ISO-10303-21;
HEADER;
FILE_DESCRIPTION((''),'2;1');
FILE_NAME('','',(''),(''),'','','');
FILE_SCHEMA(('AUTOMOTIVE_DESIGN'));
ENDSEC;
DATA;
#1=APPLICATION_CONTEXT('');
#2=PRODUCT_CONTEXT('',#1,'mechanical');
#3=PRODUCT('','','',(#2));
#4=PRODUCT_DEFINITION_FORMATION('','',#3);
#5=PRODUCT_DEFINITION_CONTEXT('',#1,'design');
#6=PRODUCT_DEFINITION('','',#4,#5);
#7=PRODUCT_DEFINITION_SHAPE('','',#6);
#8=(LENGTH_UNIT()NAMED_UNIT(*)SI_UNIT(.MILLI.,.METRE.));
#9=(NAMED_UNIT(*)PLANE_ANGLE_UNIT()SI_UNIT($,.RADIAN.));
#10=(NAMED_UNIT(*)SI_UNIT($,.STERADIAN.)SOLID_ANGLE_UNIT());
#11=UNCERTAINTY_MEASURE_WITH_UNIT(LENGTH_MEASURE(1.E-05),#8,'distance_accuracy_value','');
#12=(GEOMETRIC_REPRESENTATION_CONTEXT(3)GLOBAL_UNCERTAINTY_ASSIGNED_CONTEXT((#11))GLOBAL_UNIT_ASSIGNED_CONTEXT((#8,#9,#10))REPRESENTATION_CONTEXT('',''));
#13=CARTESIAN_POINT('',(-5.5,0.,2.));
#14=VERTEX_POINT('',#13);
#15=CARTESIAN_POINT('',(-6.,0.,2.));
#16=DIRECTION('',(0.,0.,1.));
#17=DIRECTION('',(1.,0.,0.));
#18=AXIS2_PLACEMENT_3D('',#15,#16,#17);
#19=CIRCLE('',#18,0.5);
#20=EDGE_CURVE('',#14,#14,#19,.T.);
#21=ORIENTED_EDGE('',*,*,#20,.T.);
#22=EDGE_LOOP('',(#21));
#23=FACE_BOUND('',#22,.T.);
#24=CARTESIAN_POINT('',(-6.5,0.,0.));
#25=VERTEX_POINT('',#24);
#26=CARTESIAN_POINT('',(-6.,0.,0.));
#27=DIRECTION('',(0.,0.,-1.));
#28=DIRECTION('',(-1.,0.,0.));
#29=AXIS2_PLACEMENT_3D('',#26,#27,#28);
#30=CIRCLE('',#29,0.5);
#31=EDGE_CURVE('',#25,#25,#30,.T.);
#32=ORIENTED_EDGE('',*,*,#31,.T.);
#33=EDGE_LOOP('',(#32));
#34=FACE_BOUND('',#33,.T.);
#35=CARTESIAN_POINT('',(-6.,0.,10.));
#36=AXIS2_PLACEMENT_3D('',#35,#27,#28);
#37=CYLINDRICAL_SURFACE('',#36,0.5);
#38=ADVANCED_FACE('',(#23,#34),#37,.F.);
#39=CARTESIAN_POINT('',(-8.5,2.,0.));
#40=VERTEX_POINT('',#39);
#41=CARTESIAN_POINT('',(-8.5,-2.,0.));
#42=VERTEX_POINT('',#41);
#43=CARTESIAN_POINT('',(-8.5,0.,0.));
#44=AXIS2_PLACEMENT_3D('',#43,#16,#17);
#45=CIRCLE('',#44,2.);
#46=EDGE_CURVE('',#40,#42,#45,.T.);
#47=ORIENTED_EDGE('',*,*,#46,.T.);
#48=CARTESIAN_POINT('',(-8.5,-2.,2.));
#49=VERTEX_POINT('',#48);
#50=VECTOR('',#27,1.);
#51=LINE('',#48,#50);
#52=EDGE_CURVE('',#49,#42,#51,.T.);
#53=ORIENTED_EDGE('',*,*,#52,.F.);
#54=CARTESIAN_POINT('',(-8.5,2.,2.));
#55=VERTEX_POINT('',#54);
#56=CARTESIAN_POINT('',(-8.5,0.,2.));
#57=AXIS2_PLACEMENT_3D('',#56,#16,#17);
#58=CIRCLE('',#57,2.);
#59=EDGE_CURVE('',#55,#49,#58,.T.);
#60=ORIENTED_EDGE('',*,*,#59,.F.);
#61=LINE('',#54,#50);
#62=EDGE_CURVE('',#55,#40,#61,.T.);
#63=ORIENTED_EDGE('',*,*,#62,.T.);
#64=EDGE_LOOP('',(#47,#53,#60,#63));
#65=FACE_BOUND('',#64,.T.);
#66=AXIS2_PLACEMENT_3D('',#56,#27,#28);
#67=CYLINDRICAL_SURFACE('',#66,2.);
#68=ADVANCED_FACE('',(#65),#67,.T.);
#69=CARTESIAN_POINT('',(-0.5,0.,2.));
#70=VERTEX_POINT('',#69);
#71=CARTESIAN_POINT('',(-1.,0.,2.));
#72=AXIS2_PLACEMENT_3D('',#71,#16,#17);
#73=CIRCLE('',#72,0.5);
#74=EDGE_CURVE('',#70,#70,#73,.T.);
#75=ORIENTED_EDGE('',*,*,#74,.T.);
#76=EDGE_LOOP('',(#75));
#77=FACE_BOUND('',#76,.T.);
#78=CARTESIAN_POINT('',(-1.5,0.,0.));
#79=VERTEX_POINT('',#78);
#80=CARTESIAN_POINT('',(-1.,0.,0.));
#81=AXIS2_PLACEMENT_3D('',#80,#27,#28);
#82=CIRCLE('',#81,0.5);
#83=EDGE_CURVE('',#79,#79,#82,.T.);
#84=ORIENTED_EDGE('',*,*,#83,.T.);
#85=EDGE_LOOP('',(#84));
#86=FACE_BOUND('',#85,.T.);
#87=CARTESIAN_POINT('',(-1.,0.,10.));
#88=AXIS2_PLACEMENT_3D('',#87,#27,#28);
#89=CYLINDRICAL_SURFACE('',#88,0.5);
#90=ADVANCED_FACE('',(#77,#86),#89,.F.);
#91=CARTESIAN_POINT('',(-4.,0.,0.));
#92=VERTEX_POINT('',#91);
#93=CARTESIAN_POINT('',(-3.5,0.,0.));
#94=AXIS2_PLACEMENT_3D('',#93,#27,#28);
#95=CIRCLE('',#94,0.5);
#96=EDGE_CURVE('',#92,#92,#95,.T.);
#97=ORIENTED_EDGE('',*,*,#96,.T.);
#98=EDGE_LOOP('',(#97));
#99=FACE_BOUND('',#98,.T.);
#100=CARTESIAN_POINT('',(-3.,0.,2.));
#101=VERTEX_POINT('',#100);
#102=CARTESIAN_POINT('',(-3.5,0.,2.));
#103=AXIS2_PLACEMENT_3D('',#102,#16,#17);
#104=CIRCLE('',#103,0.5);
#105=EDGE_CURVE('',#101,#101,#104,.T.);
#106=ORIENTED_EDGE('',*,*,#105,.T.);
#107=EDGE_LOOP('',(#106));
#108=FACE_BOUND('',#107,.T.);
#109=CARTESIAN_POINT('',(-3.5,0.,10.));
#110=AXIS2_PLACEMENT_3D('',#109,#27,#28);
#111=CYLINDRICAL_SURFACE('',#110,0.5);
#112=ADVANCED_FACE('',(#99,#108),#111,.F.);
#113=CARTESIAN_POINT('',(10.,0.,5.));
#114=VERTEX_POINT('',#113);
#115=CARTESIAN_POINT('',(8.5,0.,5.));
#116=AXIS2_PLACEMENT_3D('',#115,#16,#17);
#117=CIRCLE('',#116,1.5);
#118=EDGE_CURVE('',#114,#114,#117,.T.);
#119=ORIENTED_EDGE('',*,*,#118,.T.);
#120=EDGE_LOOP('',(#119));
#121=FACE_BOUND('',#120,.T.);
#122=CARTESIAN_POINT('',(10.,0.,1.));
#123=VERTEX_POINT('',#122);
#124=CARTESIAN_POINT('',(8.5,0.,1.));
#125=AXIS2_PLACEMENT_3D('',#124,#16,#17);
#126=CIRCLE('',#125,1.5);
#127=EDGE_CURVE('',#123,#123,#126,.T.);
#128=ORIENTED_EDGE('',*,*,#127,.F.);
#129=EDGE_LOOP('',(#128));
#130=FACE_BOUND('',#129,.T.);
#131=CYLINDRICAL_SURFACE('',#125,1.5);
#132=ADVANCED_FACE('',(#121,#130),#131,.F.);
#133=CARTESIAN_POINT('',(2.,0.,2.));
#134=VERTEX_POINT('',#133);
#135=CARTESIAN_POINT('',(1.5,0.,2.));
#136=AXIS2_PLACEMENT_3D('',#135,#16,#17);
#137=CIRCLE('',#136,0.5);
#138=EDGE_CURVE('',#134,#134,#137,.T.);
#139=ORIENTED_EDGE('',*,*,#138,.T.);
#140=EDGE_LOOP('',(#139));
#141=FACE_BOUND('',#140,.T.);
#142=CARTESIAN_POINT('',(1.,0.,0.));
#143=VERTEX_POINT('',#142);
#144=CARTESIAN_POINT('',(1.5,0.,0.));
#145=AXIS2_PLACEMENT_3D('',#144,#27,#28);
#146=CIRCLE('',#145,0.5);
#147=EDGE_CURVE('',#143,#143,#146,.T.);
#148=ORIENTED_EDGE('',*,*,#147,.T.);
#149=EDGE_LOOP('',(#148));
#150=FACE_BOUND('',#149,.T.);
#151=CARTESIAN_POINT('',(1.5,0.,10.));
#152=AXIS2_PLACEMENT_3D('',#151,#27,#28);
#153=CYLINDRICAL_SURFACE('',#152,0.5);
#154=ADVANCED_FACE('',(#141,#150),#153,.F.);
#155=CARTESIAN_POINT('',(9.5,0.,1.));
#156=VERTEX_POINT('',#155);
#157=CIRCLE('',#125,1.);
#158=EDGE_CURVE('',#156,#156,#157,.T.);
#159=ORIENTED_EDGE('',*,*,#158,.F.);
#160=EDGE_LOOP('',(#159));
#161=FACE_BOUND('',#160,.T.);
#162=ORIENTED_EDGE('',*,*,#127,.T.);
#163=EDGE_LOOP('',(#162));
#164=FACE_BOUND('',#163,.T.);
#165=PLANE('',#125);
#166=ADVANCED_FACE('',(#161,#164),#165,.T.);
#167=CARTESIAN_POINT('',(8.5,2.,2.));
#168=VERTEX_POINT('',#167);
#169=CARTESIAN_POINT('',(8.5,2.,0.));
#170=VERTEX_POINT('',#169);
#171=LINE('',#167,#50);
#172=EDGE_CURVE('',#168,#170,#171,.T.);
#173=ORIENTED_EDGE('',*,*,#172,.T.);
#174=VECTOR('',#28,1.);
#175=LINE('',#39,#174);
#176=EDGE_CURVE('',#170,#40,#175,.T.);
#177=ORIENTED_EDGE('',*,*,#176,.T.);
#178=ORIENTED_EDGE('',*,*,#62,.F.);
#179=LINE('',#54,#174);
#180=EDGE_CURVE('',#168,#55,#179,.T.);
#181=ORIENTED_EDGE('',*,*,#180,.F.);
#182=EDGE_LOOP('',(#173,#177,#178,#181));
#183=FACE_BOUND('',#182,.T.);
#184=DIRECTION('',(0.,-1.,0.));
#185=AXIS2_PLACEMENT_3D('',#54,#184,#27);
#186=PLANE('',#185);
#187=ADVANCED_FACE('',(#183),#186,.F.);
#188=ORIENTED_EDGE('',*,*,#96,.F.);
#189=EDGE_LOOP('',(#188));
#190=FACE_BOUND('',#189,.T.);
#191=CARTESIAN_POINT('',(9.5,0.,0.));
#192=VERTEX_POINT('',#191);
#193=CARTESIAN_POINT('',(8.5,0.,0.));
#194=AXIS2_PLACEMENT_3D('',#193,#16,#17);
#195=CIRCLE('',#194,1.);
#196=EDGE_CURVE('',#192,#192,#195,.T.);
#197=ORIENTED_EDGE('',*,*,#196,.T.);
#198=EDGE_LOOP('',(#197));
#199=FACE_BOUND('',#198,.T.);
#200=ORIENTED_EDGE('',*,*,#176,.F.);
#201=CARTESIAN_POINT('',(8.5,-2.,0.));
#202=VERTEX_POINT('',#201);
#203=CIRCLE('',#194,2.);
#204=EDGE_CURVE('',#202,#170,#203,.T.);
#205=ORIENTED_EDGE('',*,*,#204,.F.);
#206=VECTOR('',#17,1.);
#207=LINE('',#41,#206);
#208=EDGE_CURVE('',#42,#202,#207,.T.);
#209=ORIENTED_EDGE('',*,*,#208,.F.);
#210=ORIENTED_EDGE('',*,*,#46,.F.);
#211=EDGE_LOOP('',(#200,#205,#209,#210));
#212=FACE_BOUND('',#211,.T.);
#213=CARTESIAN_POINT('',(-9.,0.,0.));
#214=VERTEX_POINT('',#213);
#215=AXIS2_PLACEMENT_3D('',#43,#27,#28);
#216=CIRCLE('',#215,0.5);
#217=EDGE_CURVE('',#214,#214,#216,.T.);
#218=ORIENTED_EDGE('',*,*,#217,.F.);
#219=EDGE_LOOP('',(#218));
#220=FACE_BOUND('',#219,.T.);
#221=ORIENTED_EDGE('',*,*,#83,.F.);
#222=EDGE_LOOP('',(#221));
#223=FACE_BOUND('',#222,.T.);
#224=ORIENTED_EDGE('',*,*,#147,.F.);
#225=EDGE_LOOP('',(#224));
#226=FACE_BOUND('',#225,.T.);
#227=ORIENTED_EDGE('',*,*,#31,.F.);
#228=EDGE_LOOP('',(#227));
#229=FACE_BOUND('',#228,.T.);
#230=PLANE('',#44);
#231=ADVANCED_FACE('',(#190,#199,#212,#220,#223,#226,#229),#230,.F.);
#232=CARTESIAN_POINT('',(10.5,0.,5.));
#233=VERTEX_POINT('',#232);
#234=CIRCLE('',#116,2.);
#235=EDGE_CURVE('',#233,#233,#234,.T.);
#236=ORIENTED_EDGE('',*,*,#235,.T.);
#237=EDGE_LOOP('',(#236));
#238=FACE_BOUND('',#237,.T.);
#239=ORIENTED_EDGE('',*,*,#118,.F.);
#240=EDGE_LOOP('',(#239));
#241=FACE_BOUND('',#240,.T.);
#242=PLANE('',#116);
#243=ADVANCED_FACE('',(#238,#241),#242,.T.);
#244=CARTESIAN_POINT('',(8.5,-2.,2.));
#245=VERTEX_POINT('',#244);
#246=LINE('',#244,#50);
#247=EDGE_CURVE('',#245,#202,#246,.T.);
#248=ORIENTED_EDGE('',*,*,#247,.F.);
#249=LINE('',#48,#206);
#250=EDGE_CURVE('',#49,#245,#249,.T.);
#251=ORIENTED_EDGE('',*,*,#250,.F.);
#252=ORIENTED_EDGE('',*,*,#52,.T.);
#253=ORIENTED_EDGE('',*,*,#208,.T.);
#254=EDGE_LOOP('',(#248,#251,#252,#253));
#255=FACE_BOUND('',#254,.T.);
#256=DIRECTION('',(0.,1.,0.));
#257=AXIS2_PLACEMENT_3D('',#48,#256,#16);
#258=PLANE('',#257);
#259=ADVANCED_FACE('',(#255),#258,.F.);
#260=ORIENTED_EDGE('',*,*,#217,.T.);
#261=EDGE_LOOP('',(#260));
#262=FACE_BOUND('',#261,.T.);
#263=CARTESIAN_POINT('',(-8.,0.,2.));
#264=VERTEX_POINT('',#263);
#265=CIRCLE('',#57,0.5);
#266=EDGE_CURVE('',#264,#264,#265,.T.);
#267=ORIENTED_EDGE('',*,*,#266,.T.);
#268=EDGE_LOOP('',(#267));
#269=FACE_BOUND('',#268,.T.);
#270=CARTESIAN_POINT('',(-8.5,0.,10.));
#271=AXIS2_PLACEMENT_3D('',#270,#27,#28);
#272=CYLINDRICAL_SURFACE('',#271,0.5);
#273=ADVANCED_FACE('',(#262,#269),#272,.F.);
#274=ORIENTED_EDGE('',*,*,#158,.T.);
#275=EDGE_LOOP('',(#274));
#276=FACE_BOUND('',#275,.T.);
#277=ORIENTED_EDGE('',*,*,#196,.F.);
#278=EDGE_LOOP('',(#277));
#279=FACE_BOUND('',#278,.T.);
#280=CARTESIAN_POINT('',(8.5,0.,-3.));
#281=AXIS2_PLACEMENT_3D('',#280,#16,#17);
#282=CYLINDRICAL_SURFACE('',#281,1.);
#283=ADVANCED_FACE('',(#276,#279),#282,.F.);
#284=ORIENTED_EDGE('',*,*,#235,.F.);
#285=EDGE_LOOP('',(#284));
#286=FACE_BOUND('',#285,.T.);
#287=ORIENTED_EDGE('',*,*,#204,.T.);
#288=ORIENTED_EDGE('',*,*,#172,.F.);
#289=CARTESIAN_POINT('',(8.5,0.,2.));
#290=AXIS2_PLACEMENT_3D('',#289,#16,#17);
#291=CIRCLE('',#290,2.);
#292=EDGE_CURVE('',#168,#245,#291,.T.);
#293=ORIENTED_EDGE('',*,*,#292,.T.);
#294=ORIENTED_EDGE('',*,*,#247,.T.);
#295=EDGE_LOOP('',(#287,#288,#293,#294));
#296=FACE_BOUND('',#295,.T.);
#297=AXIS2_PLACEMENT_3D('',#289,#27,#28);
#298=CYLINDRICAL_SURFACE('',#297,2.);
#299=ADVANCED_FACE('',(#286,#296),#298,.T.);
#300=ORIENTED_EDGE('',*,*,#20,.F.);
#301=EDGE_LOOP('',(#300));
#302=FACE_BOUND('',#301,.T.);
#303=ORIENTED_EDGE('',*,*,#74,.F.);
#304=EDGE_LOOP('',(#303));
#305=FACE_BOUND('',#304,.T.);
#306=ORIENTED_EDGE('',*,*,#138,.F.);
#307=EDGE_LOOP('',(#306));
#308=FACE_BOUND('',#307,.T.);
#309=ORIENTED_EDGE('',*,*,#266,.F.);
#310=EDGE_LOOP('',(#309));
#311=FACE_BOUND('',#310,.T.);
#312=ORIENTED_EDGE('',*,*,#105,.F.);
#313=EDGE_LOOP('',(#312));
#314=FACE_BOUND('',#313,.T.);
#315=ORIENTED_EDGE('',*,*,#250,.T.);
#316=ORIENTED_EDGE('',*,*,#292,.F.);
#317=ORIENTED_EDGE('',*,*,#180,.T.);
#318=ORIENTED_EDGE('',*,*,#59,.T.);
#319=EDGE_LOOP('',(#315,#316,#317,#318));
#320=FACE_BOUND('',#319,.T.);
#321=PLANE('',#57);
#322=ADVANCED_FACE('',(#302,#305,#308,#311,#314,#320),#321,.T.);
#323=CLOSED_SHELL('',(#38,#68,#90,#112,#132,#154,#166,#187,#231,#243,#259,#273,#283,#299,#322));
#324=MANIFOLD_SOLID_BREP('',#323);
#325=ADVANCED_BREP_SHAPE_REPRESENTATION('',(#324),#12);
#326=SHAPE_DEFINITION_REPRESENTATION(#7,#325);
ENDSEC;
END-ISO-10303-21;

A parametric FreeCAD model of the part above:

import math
import FreeCAD as App
import Part
import Sketcher
from FreeCAD import Vector
Q = App.Units.Quantity

doc = App.newDocument("Part")
body = doc.addObject("PartDesign::Body", "Body")

# Sketch on XY plane
sketch1 = body.newObject("Sketcher::SketchObject", "Sketch")
sketch1.AttachmentSupport = (doc.getObject("XY_Plane"), [""])
sketch1.MapMode = "FlatFace"
sketch1.addGeometry(Part.LineSegment(Vector(8.5, 2, 0), Vector(-8.5, 2, 0)), False)
sketch1.addGeometry(Part.ArcOfCircle(Part.Circle(Vector(-8.5, 0, 0), Vector(0, 0, 1), 2), math.radians(90), math.radians(270)), False)
sketch1.addGeometry(Part.LineSegment(Vector(-8.5, -2, 0), Vector(8.5, -2, 0)), False)
sketch1.addGeometry(Part.ArcOfCircle(Part.Circle(Vector(8.5, 0, 0), Vector(0, 0, 1), 2), math.radians(-90), math.radians(90)), False)
sketch1.addConstraint(Sketcher.Constraint("Tangent", 0, 2, 1, 1))
sketch1.addConstraint(Sketcher.Constraint("Tangent", 1, 2, 2, 1))
sketch1.addConstraint(Sketcher.Constraint("Tangent", 2, 2, 3, 1))
sketch1.addConstraint(Sketcher.Constraint("Tangent", 3, 2, 0, 1))
sketch1.addConstraint(Sketcher.Constraint("Horizontal", 0))
sketch1.addConstraint(Sketcher.Constraint("Horizontal", 2))
sketch1.addConstraint(Sketcher.Constraint("Symmetric", 1, 3, 3, 3, -1, 1))
sketch1.addConstraint(Sketcher.Constraint("Radius", 1, Q("2 mm")))
sketch1.addConstraint(Sketcher.Constraint("DistanceX", 0, 2, 0, 1, Q("17 mm")))
pad1 = body.newObject("PartDesign::Pad", "Pad")
pad1.Profile = sketch1
pad1.Length = 2

# Sketch on XY plane
sketch2 = body.newObject("Sketcher::SketchObject", "Sketch001")
sketch2.AttachmentSupport = (doc.getObject("XY_Plane"), [""])
sketch2.MapMode = "FlatFace"
sketch2.AttachmentOffset = App.Placement(Vector(0, 0, 2), App.Rotation())
sketch2.addGeometry(Part.Circle(Vector(8.5, 0, 0), Vector(0, 0, 1), 2), False)
sketch2.addConstraint(Sketcher.Constraint("PointOnObject", 0, 3, -1))
sketch2.addConstraint(Sketcher.Constraint("Diameter", 0, Q("4 mm")))
sketch2.addConstraint(Sketcher.Constraint("DistanceX", -1, 1, 0, 3, Q("8.5 mm")))
pad2 = body.newObject("PartDesign::Pad", "Pad001")
pad2.Profile = sketch2
pad2.Length = 3

# Sketch on XY plane
sketch3 = body.newObject("Sketcher::SketchObject", "Sketch002")
sketch3.AttachmentSupport = (doc.getObject("XY_Plane"), [""])
sketch3.MapMode = "FlatFace"
sketch3.AttachmentOffset = App.Placement(Vector(0, 0, 5), App.Rotation())
sketch3.addGeometry(Part.Circle(Vector(8.5, 0, 0), Vector(0, 0, 1), 1.5), False)
sketch3.addConstraint(Sketcher.Constraint("PointOnObject", 0, 3, -1))
sketch3.addConstraint(Sketcher.Constraint("Diameter", 0, Q("3 mm")))
sketch3.addConstraint(Sketcher.Constraint("DistanceX", -1, 1, 0, 3, Q("8.5 mm")))
pocket1 = body.newObject("PartDesign::Pocket", "Pocket")
pocket1.Profile = sketch3
pocket1.Length = 4

# Sketch on XY plane
sketch4 = body.newObject("Sketcher::SketchObject", "Sketch003")
sketch4.AttachmentSupport = (doc.getObject("XY_Plane"), [""])
sketch4.MapMode = "FlatFace"
sketch4.AttachmentOffset = App.Placement(Vector(0, 0, 1), App.Rotation())
sketch4.addGeometry(Part.Circle(Vector(8.5, 0, 0), Vector(0, 0, 1), 1), False)
sketch4.addConstraint(Sketcher.Constraint("PointOnObject", 0, 3, -1))
sketch4.addConstraint(Sketcher.Constraint("Diameter", 0, Q("2 mm")))
sketch4.addConstraint(Sketcher.Constraint("DistanceX", -1, 1, 0, 3, Q("8.5 mm")))
pocket2 = body.newObject("PartDesign::Pocket", "Pocket001")
pocket2.Profile = sketch4
pocket2.Length = 4

# Sketch on XY plane
sketch5 = body.newObject("Sketcher::SketchObject", "Sketch004")
sketch5.AttachmentSupport = (doc.getObject("XY_Plane"), [""])
sketch5.MapMode = "FlatFace"
sketch5.addGeometry(Part.Circle(Vector(1.5, 0, 0), Vector(0, 0, 1), 0.5), False)
sketch5.addGeometry(Part.Circle(Vector(-1, 0, 0), Vector(0, 0, 1), 0.5), False)
sketch5.addGeometry(Part.Circle(Vector(-3.5, 0, 0), Vector(0, 0, 1), 0.5), False)
sketch5.addGeometry(Part.Circle(Vector(-6, 0, 0), Vector(0, 0, 1), 0.5), False)
sketch5.addGeometry(Part.Circle(Vector(-8.5, 0, 0), Vector(0, 0, 1), 0.5), False)
sketch5.addConstraint(Sketcher.Constraint("Equal", 0, 1))
sketch5.addConstraint(Sketcher.Constraint("Equal", 1, 2))
sketch5.addConstraint(Sketcher.Constraint("Equal", 2, 3))
sketch5.addConstraint(Sketcher.Constraint("Equal", 3, 4))
sketch5.addConstraint(Sketcher.Constraint("PointOnObject", 0, 3, -1))
sketch5.addConstraint(Sketcher.Constraint("PointOnObject", 1, 3, -1))
sketch5.addConstraint(Sketcher.Constraint("PointOnObject", 2, 3, -1))
sketch5.addConstraint(Sketcher.Constraint("PointOnObject", 3, 3, -1))
sketch5.addConstraint(Sketcher.Constraint("PointOnObject", 4, 3, -1))
sketch5.addConstraint(Sketcher.Constraint("Diameter", 0, Q("1 mm")))
sketch5.addConstraint(Sketcher.Constraint("DistanceX", 1, 3, -1, 1, Q("1 mm")))
sketch5.addConstraint(Sketcher.Constraint("DistanceX", 3, 3, -1, 1, Q("6 mm")))
sketch5.addConstraint(Sketcher.Constraint("DistanceX", 2, 3, 0, 3, Q("5 mm")))
sketch5.addConstraint(Sketcher.Constraint("DistanceX", 4, 3, 2, 3, Q("5 mm")))
sketch5.addConstraint(Sketcher.Constraint("DistanceX", -1, 1, 0, 3, Q("1.5 mm")))
pocket3 = body.newObject("PartDesign::Pocket", "Pocket002")
pocket3.Profile = sketch5
pocket3.Length = 10
pocket3.Reversed = True

doc.recompute()
